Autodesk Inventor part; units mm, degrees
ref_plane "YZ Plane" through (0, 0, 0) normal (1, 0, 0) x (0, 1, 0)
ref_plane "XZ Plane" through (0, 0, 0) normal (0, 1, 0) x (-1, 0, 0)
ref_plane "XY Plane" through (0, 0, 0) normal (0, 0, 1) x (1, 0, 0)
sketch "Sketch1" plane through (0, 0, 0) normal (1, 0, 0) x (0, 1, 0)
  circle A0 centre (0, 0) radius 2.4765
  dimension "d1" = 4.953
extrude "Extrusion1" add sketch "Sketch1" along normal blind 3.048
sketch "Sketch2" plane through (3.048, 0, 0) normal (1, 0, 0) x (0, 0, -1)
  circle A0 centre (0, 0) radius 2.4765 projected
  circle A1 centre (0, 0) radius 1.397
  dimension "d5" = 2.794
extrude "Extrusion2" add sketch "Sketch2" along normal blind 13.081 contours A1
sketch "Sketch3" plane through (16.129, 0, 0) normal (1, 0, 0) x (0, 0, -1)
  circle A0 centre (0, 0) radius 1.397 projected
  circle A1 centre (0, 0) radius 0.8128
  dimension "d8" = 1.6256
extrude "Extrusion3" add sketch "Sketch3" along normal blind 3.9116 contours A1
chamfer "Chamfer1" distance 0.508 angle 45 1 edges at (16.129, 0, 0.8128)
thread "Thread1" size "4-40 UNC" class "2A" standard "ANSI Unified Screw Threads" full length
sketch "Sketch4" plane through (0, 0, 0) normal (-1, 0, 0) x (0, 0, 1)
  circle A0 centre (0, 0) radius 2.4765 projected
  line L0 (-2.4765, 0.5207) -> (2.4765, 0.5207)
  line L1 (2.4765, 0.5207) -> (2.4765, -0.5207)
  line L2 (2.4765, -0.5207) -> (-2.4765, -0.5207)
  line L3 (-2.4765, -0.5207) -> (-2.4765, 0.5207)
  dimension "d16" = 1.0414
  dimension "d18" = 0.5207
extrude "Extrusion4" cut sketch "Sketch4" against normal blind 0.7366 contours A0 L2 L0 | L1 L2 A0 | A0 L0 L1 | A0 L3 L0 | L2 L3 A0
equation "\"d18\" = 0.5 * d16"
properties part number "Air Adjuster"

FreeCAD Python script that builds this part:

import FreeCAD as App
import Part
import Sketcher

V = App.Vector
Q = App.Units.Quantity


def edges_at(feature, points):
    """Names of the edges that pass closest to the given points."""
    edges = feature.Shape.Edges
    near = lambda p: min(range(len(edges)), key=lambda i: edges[i].distToShape(Part.Vertex(*p))[0])
    return sorted({f"Edge{near(p) + 1}" for p in points})

doc = App.newDocument("Part")
body = doc.addObject("PartDesign::Body", "Body")

sketch1 = body.newObject("Sketcher::SketchObject", "Sketch")
sketch1.AttachmentSupport = (doc.getObject("YZ_Plane"), [""])
sketch1.MapMode = "FlatFace"
sketch1.addGeometry(Part.Circle(V(0, 0, 0), V(0, 0, 1), 2.5), False)
sketch1.addConstraint([
    Sketcher.Constraint("Coincident", 0, 3, -1, 1),
    Sketcher.Constraint("Diameter", 0, Q("0.195 in")),
])
pad1 = body.newObject("PartDesign::Pad", "Pad")
pad1.Profile = sketch1
pad1.Length = Q("0.12 in")

sketch2 = body.newObject("Sketcher::SketchObject", "Sketch001")
sketch2.AttachmentSupport = (doc.getObject("YZ_Plane"), [""])
sketch2.MapMode = "FlatFace"
sketch2.AttachmentOffset = App.Placement(V(0, 0, 0.12 * 25.4), App.Rotation())
sketch2.addGeometry(Part.Circle(V(0, 0, 0), V(0, 0, 1), 1.4), False)
sketch2.addConstraint([
    Sketcher.Constraint("Coincident", 0, 3, -1, 1),
    Sketcher.Constraint("Diameter", 0, Q("0.11 in")),
])
pad2 = body.newObject("PartDesign::Pad", "Pad001")
pad2.Profile = sketch2
pad2.Length = Q("0.515 in")

sketch3 = body.newObject("Sketcher::SketchObject", "Sketch002")
sketch3.AttachmentSupport = (doc.getObject("YZ_Plane"), [""])
sketch3.MapMode = "FlatFace"
sketch3.AttachmentOffset = App.Placement(V(0, 0, 0.635 * 25.4), App.Rotation())
sketch3.addGeometry(Part.Circle(V(0, 0, 0), V(0, 0, 1), 0.8), False)
sketch3.addConstraint([
    Sketcher.Constraint("Coincident", 0, 3, -1, 1),
    Sketcher.Constraint("Diameter", 0, Q("0.064 in")),
])
pad3 = body.newObject("PartDesign::Pad", "Pad002")
pad3.Profile = sketch3
pad3.Length = Q("0.154 in")
doc.recompute()

chamfer = body.newObject("PartDesign::Chamfer", "Chamfer")
chamfer.Base = (pad3, edges_at(pad3, [(16.129, 0, 0.813)]))
chamfer.Size = Q("0.02 in")

sketch4 = body.newObject("Sketcher::SketchObject", "Sketch003")
sketch4.AttachmentSupport = (doc.getObject("YZ_Plane"), [""])
sketch4.MapMode = "FlatFace"
sketch4.addGeometry([
    Part.LineSegment(V(-0.5, 2.5, 0), V(0.5, 2.5, 0)),
    Part.LineSegment(V(0.5, 2.5, 0), V(0.5, -2.5, 0)),
    Part.LineSegment(V(0.5, -2.5, 0), V(-0.5, -2.5, 0)),
    Part.LineSegment(V(-0.5, -2.5, 0), V(-0.5, 2.5, 0)),
], False)
sketch4.addConstraint([
    Sketcher.Constraint("Coincident", 0, 2, 1, 1),
    Sketcher.Constraint("Coincident", 1, 2, 2, 1),
    Sketcher.Constraint("Coincident", 2, 2, 3, 1),
    Sketcher.Constraint("Coincident", 3, 2, 0, 1),
    Sketcher.Constraint("Horizontal", 0),
    Sketcher.Constraint("Vertical", 1),
    Sketcher.Constraint("Horizontal", 2),
    Sketcher.Constraint("Vertical", 3),
    Sketcher.Constraint("Symmetric", 0, 2, 2, 2, -1, 1),
    Sketcher.Constraint("DistanceX", 0, 1, 0, 2, Q("0.041 in")),
    Sketcher.Constraint("DistanceY", 1, 2, 1, 1, Q("0.195 in")),
])
pocket1 = body.newObject("PartDesign::Pocket", "Pocket")
pocket1.Profile = sketch4
pocket1.Length = Q("0.029 in")
pocket1.Reversed = True

doc.recompute()
